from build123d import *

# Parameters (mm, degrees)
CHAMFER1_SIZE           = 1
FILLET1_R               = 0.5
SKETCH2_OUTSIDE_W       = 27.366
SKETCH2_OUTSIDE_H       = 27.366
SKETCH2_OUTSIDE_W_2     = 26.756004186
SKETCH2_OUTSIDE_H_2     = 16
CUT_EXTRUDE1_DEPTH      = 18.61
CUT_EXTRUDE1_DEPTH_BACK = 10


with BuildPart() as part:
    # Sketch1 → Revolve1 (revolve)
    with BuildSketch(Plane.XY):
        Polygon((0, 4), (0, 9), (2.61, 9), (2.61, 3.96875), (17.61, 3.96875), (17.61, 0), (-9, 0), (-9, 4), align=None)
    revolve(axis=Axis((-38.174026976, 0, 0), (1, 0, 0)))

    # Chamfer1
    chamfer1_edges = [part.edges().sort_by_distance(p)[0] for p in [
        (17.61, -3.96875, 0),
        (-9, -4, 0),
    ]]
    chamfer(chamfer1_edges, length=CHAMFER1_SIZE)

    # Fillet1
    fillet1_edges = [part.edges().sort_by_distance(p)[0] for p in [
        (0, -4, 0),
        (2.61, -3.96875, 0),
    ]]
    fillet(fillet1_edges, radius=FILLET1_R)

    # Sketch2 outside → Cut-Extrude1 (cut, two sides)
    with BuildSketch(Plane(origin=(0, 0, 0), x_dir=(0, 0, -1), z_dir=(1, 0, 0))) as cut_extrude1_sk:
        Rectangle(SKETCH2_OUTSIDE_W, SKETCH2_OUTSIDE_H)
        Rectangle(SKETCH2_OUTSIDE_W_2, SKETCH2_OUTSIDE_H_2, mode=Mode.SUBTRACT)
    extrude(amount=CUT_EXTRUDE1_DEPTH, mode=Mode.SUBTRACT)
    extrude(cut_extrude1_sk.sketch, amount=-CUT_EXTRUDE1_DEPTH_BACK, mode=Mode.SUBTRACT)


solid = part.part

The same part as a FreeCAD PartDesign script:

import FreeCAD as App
import Part
import Sketcher
from FreeCAD import Vector


def edges_at(feature, points):
    """Names of the edges that pass closest to the given points."""
    edges = feature.Shape.Edges
    near = lambda p: min(range(len(edges)), key=lambda i: edges[i].distToShape(Part.Vertex(*p))[0])
    return sorted({f"Edge{near(p) + 1}" for p in points})

doc = App.newDocument("Part")
body = doc.addObject("PartDesign::Body", "Body")

# Sketch on XY plane
sketch1 = body.newObject("Sketcher::SketchObject", "Sketch")
sketch1.AttachmentSupport = (doc.getObject("XY_Plane"), [""])
sketch1.MapMode = "FlatFace"
sketch1.addGeometry([
    Part.LineSegment(Vector(0, 9, 0), Vector(0, 4, 0)),  # 0
    Part.LineSegment(Vector(0, 4, 0), Vector(-9, 4, 0)),  # 1
    Part.LineSegment(Vector(-9, 4, 0), Vector(-9, 0, 0)),  # 2
    Part.LineSegment(Vector(-9, 0, 0), Vector(17.6, 0, 0)),  # 3
    Part.LineSegment(Vector(17.6, 0, 0), Vector(17.6, 4, 0)),  # 4
    Part.LineSegment(Vector(17.6, 4, 0), Vector(2.6, 4, 0)),  # 5
    Part.LineSegment(Vector(2.6, 4, 0), Vector(2.6, 9, 0)),  # 6
    Part.LineSegment(Vector(2.6, 9, 0), Vector(0, 9, 0)),  # 7
], False)
sketch1.addConstraint([
    Sketcher.Constraint("Coincident", 0, 2, 1, 1),
    Sketcher.Constraint("Coincident", 1, 2, 2, 1),
    Sketcher.Constraint("Coincident", 2, 2, 3, 1),
    Sketcher.Constraint("Coincident", 3, 2, 4, 1),
    Sketcher.Constraint("Coincident", 4, 2, 5, 1),
    Sketcher.Constraint("Coincident", 5, 2, 6, 1),
    Sketcher.Constraint("Coincident", 6, 2, 7, 1),
    Sketcher.Constraint("Coincident", 7, 2, 0, 1),
    Sketcher.Constraint("Vertical", 0),
    Sketcher.Constraint("Horizontal", 1),
    Sketcher.Constraint("Vertical", 2),
    Sketcher.Constraint("Horizontal", 3),
    Sketcher.Constraint("Vertical", 4),
    Sketcher.Constraint("Horizontal", 5),
    Sketcher.Constraint("Vertical", 6),
    Sketcher.Constraint("Horizontal", 7),
    Sketcher.Constraint("PointOnObject", 0, 2, -2),
    Sketcher.Constraint("PointOnObject", 2, 2, -1),
    Sketcher.Constraint("DistanceX", 1, 2, 1, 1, 9.0),
    Sketcher.Constraint("DistanceX", 5, 2, 5, 1, 15.0),
    Sketcher.Constraint("DistanceY", 0, 2, 0, 1, 5.0),
    Sketcher.Constraint("DistanceY", 2, 2, 2, 1, 4.0),
    Sketcher.Constraint("DistanceX", 3, 1, 3, 2, 26.61),
    Sketcher.Constraint("DistanceY", 4, 1, 4, 2, 3.96875),
])
revolution = body.newObject("PartDesign::Revolution", "Revolution")
revolution.Profile = sketch1
revolution.ReferenceAxis = (sketch1, ["H_Axis"])
revolution.Angle = 360
doc.recompute()

chamfer = body.newObject("PartDesign::Chamfer", "Chamfer")
chamfer.Base = (revolution, edges_at(revolution, [(17.61, -3.969, 0), (-9, -4, 0)]))
chamfer.Size = 1
doc.recompute()

fillet = body.newObject("PartDesign::Fillet", "Fillet")
fillet.Base = (chamfer, edges_at(chamfer, [(0, -4, 0), (2.61, -3.969, 0)]))
fillet.Radius = 0.5

# Sketch on YZ plane
sketch2 = body.newObject("Sketcher::SketchObject", "Sketch001")
sketch2.AttachmentSupport = (doc.getObject("YZ_Plane"), [""])
sketch2.MapMode = "FlatFace"
sketch2.addGeometry([
    Part.LineSegment(Vector(14, 14, 0), Vector(-14, 14, 0)),  # 0
    Part.LineSegment(Vector(-14, 14, 0), Vector(-14, -14, 0)),  # 1
    Part.LineSegment(Vector(-14, -14, 0), Vector(14, -14, 0)),  # 2
    Part.LineSegment(Vector(14, -14, 0), Vector(14, 14, 0)),  # 3
    Part.LineSegment(Vector(-8, -13, 0), Vector(-8, 13, 0)),  # 4
    Part.LineSegment(Vector(-8, 13, 0), Vector(8, 13, 0)),  # 5
    Part.LineSegment(Vector(8, 13, 0), Vector(8, -13, 0)),  # 6
    Part.LineSegment(Vector(8, -13, 0), Vector(-8, -13, 0)),  # 7
], False)
sketch2.addConstraint([
    Sketcher.Constraint("Coincident", 0, 2, 1, 1),
    Sketcher.Constraint("Coincident", 1, 2, 2, 1),
    Sketcher.Constraint("Coincident", 2, 2, 3, 1),
    Sketcher.Constraint("Coincident", 3, 2, 0, 1),
    Sketcher.Constraint("Coincident", 4, 2, 5, 1),
    Sketcher.Constraint("Coincident", 5, 2, 6, 1),
    Sketcher.Constraint("Coincident", 6, 2, 7, 1),
    Sketcher.Constraint("Coincident", 7, 2, 4, 1),
    Sketcher.Constraint("Horizontal", 0),
    Sketcher.Constraint("Vertical", 1),
    Sketcher.Constraint("Horizontal", 2),
    Sketcher.Constraint("Vertical", 3),
    Sketcher.Constraint("Vertical", 4),
    Sketcher.Constraint("Horizontal", 5),
    Sketcher.Constraint("Vertical", 6),
    Sketcher.Constraint("Horizontal", 7),
    Sketcher.Constraint("Symmetric", 0, 2, 2, 2, -1, 1),
    Sketcher.Constraint("Symmetric", 4, 2, 6, 2, -1, 1),
    Sketcher.Constraint("Equal", 2, 1),
    Sketcher.Constraint("DistanceX", 5, 1, 5, 2, 16.0),
    Sketcher.Constraint("DistanceX", 0, 2, 0, 1, 27.366),
    Sketcher.Constraint("DistanceY", 4, 1, 4, 2, 26.756004),
])
pocket1 = body.newObject("PartDesign::Pocket", "Pocket")
pocket1.Profile = sketch2
pocket1.Type = "ThroughAll"
pocket1.Midplane = True

doc.recompute()
